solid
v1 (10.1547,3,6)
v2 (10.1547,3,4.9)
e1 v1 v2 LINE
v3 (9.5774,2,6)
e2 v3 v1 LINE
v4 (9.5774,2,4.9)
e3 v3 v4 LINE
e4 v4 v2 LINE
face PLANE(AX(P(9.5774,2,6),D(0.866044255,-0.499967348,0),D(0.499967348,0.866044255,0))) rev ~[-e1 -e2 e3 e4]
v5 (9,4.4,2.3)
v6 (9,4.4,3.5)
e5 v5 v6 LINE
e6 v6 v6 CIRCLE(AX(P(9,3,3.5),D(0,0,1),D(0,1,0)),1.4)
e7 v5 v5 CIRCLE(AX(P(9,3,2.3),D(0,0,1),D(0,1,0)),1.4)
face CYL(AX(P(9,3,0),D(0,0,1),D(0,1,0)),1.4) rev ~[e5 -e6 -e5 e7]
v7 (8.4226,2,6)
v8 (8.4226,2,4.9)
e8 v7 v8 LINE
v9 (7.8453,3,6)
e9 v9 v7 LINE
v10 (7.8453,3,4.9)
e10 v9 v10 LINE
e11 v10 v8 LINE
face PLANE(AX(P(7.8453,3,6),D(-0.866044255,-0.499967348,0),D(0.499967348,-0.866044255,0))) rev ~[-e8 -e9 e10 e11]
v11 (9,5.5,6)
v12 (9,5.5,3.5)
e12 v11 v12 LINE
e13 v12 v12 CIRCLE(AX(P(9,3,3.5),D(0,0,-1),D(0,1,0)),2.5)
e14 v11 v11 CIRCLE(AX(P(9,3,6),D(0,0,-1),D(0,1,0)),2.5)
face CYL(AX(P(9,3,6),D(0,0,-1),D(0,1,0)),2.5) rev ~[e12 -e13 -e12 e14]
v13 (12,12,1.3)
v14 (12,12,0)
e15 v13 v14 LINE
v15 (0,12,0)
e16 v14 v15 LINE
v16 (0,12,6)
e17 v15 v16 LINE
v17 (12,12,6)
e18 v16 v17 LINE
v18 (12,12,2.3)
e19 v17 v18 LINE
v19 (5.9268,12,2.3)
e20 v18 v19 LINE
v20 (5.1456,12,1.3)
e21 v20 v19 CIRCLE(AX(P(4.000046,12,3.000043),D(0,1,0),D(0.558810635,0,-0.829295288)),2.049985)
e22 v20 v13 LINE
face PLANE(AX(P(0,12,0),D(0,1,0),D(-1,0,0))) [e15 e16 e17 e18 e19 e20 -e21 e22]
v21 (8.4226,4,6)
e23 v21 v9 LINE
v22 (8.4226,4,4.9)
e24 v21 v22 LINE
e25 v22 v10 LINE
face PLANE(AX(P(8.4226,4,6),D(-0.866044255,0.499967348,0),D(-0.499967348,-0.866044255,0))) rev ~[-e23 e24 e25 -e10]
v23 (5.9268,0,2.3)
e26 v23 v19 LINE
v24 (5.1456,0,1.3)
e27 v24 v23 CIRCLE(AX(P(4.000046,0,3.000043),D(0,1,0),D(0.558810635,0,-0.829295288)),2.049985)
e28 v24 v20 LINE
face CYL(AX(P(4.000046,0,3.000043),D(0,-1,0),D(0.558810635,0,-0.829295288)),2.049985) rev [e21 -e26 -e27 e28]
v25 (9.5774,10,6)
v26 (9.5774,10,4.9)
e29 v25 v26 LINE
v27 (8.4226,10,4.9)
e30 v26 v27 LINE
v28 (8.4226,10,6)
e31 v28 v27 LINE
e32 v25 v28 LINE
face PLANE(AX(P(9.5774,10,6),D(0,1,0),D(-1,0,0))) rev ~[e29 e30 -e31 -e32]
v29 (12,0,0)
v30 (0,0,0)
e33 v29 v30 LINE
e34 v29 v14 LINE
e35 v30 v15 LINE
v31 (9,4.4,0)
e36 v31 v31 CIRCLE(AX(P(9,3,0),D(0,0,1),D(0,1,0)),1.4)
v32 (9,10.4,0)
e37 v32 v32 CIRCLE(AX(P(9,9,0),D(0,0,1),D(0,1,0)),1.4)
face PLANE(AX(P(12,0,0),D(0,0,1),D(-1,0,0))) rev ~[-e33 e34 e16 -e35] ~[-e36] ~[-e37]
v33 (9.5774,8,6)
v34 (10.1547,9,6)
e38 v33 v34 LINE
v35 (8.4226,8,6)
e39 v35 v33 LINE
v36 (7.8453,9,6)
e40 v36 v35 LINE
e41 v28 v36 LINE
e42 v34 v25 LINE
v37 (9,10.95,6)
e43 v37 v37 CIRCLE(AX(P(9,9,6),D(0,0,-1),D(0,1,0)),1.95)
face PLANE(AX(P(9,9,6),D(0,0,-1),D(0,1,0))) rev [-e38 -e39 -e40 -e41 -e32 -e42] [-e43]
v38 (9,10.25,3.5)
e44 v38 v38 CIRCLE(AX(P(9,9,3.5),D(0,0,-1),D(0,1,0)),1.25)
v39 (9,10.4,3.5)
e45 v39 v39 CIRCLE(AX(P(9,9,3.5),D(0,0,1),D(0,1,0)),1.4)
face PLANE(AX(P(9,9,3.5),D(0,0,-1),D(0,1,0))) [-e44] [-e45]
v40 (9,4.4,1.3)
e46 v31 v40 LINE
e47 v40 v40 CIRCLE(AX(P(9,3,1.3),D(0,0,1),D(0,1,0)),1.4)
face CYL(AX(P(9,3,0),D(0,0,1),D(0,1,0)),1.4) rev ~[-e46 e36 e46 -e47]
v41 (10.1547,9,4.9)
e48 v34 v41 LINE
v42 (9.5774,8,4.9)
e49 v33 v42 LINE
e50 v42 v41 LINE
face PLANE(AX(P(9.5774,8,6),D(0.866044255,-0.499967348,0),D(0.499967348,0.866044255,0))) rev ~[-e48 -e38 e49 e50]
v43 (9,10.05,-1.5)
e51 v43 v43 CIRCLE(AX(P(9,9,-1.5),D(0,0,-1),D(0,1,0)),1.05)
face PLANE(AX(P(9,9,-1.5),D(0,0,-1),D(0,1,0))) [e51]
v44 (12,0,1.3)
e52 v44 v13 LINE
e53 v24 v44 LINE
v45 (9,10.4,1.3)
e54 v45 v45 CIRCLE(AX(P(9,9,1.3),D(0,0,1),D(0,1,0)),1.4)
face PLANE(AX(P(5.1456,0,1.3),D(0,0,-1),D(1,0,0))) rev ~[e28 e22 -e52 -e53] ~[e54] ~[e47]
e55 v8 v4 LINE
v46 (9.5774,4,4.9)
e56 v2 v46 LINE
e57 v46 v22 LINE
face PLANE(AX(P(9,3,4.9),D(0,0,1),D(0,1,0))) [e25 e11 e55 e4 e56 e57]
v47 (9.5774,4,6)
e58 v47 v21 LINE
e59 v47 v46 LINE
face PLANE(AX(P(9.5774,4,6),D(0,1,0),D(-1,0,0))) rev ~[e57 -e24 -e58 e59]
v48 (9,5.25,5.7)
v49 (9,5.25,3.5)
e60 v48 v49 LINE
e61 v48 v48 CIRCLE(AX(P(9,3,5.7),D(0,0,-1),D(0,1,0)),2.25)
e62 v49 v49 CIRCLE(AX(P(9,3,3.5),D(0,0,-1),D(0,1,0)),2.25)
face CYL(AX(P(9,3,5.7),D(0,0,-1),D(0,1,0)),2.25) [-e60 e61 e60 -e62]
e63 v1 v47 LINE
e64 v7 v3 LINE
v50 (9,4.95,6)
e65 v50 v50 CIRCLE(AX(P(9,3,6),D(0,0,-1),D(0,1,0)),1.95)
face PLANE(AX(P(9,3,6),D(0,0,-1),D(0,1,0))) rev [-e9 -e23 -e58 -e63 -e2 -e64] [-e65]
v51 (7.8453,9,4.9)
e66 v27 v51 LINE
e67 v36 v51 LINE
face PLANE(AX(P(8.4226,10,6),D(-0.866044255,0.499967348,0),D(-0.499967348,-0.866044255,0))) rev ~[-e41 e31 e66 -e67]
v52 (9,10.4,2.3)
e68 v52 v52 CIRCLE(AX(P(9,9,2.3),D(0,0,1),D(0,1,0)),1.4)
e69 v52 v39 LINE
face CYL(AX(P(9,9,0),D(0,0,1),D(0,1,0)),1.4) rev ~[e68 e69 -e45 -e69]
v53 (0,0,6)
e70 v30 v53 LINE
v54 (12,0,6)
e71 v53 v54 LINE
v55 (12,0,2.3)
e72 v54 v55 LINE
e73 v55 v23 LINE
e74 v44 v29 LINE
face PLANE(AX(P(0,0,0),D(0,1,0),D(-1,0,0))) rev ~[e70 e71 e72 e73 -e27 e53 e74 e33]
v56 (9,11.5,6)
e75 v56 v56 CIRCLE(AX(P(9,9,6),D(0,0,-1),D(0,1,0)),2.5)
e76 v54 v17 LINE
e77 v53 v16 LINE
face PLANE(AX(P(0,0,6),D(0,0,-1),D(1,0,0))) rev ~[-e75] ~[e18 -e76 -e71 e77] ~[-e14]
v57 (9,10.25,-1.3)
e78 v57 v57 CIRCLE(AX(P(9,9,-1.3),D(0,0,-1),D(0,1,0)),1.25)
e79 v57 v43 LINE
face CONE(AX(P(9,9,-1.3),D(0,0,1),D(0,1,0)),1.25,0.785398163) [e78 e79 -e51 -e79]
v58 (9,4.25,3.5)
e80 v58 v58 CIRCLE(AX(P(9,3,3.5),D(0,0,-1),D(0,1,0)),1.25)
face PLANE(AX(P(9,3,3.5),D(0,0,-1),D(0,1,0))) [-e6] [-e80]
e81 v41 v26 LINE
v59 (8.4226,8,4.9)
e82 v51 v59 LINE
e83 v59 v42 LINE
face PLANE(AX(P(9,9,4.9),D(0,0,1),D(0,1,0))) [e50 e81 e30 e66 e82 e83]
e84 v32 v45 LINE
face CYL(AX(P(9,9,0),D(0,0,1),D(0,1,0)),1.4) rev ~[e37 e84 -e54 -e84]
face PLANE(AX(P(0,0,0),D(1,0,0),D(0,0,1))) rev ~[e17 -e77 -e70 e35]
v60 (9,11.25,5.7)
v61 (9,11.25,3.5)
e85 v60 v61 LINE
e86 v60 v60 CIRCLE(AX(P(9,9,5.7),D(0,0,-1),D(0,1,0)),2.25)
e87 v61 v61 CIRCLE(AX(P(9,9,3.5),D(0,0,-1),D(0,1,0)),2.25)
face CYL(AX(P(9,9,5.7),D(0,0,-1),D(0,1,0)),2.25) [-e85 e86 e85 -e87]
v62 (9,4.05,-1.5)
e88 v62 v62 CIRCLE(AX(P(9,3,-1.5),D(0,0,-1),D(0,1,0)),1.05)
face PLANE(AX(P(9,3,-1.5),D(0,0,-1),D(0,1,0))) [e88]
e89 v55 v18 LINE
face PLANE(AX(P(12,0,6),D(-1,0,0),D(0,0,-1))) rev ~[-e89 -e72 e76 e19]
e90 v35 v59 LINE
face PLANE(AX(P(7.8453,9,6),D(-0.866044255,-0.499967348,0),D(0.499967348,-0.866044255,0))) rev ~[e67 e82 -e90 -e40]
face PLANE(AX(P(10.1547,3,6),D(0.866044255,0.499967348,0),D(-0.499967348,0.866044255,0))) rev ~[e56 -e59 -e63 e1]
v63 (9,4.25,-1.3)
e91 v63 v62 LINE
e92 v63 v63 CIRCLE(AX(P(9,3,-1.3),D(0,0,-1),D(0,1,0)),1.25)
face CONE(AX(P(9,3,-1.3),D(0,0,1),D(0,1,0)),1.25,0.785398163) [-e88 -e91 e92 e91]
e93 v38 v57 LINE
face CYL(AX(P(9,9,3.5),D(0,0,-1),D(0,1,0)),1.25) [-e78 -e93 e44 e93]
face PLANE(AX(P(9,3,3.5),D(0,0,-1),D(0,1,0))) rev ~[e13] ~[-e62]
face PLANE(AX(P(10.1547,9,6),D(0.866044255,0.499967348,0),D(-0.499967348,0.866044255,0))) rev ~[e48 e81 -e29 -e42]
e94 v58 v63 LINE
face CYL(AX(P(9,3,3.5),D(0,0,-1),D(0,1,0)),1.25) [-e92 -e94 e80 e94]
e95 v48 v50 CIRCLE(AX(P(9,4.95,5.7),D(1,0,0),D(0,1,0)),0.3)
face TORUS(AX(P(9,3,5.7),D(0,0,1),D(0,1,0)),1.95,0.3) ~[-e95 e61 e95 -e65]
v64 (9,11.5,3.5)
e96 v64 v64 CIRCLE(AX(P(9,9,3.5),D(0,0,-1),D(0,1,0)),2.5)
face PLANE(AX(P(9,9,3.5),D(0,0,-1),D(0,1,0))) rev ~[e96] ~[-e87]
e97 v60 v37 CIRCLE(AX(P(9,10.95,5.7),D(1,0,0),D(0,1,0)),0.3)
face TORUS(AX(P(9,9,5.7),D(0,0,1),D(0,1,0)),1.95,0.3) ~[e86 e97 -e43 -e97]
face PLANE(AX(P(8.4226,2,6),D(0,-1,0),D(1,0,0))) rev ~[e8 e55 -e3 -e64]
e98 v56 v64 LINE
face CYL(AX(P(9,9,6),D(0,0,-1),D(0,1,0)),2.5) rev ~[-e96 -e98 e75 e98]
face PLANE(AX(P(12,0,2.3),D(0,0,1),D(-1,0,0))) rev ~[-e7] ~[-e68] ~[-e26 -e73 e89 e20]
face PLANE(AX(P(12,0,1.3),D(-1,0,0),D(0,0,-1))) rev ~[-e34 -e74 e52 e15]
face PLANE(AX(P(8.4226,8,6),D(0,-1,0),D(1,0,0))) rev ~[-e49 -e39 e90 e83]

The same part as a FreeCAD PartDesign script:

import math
import FreeCAD as App
import Part
import Sketcher
Q = App.Units.Quantity

doc = App.newDocument("Part")
body = doc.addObject("PartDesign::Body", "Body")

sketch1 = body.newObject("Sketcher::SketchObject", "Sketch")
sketch1.AttachmentSupport = (doc.getObject("XZ_Plane"), [""])
sketch1.MapMode = "FlatFace"
sketch1.addGeometry([
    Part.LineSegment(App.Vector(0, 0, 0), App.Vector(0, 6, 0)),
    Part.LineSegment(App.Vector(0, 6, 0), App.Vector(12, 6, 0)),
    Part.LineSegment(App.Vector(12, 6, 0), App.Vector(12, 2.3, 0)),
    Part.LineSegment(App.Vector(12, 2.3, 0), App.Vector(5.9268, 2.3, 0)),
    Part.ArcOfCircle(Part.Circle(App.Vector(4, 3, 0), App.Vector(0, 0, 1), 2.049975), math.radians(-19.965914), math.radians(303.975335)),
    Part.LineSegment(App.Vector(5.1456, 1.3, 0), App.Vector(12, 1.3, 0)),
    Part.LineSegment(App.Vector(12, 1.3, 0), App.Vector(12, 0, 0)),
    Part.LineSegment(App.Vector(12, 0, 0), App.Vector(0, 0, 0)),
], False)
sketch1.addConstraint([
    Sketcher.Constraint("Coincident", 0, 2, 1, 1),
    Sketcher.Constraint("Coincident", 1, 2, 2, 1),
    Sketcher.Constraint("Coincident", 2, 2, 3, 1),
    Sketcher.Constraint("Coincident", 3, 2, 4, 1),
    Sketcher.Constraint("Coincident", 4, 2, 5, 1),
    Sketcher.Constraint("Coincident", 5, 2, 6, 1),
    Sketcher.Constraint("Coincident", 6, 2, 7, 1),
    Sketcher.Constraint("Coincident", 7, 2, 0, 1),
    Sketcher.Constraint("Vertical", 0),
    Sketcher.Constraint("Horizontal", 1),
    Sketcher.Constraint("Vertical", 2),
    Sketcher.Constraint("Horizontal", 3),
    Sketcher.Constraint("Horizontal", 5),
    Sketcher.Constraint("Vertical", 6),
    Sketcher.Constraint("Horizontal", 7),
    Sketcher.Constraint("Coincident", 7, 2, -1, 1),
    Sketcher.Constraint("Vertical", 2, 2, 5, 2),
    Sketcher.Constraint("DistanceX", 1, 1, 1, 2, Q("12 mm")),
    Sketcher.Constraint("DistanceY", 0, 1, 0, 2, Q("6 mm")),
    Sketcher.Constraint("Radius", 4, Q("2.05 mm")),
    Sketcher.Constraint("DistanceY", 2, 2, 2, 1, Q("3.7 mm")),
    Sketcher.Constraint("DistanceY", 6, 2, 6, 1, Q("1.3 mm")),
    Sketcher.Constraint("DistanceX", -1, 1, 4, 3, Q("4 mm")),
    Sketcher.Constraint("DistanceY", -1, 1, 4, 3, Q("3 mm")),
])
pad1 = body.newObject("PartDesign::Pad", "Pad")
pad1.Profile = sketch1
pad1.Length = 12
pad1.Reversed = True

sketch2 = body.newObject("Sketcher::SketchObject", "Sketch001")
sketch2.AttachmentSupport = (doc.getObject("XY_Plane"), [""])
sketch2.MapMode = "FlatFace"
sketch2.addGeometry(Part.Circle(App.Vector(9, 3, 0), App.Vector(0, 0, 1), 1.4), False)
sketch2.addConstraint([
    Sketcher.Constraint("Diameter", 0, Q("2.8 mm")),
    Sketcher.Constraint("DistanceX", -1, 1, 0, 3, Q("9 mm")),
    Sketcher.Constraint("DistanceY", -1, 1, 0, 3, Q("3 mm")),
])
doc.recompute()
hole = body.newObject("PartDesign::Hole", "Hole")
hole.Profile = sketch2
hole.ThreadType = "None"
hole.Diameter = 2.8
hole.DepthType = "Dimension"
hole.Depth = 6
hole.DrillPoint = "Flat"
hole.Reversed = True
doc.recompute()

linearpattern = body.newObject("PartDesign::LinearPattern", "LinearPattern")
linearpattern.Originals = [hole]
linearpattern.Direction = (doc.getObject("Y_Axis"), [""])
linearpattern.Mode = "offset"
linearpattern.Offset = 6
linearpattern.Occurrences = 2
body.Tip = linearpattern

sketch3 = body.newObject("Sketcher::SketchObject", "Sketch002")
sketch3.AttachmentSupport = (doc.getObject("YZ_Plane"), [""])
sketch3.MapMode = "FlatFace"
sketch3.AttachmentOffset = App.Placement(App.Vector(0, 0, 9), App.Rotation())
sketch3.addGeometry([
    Part.LineSegment(App.Vector(3, 6, 0), App.Vector(3, 3.5, 0)),
    Part.LineSegment(App.Vector(3, 3.5, 0), App.Vector(5.5, 3.5, 0)),
    Part.LineSegment(App.Vector(5.5, 3.5, 0), App.Vector(5.5, 6, 0)),
    Part.LineSegment(App.Vector(5.5, 6, 0), App.Vector(3, 6, 0)),
], False)
sketch3.addGeometry(Part.LineSegment(App.Vector(3, 6, 0), App.Vector(3, 3.5, 0)), True)
sketch3.addConstraint([
    Sketcher.Constraint("Coincident", 0, 2, 1, 1),
    Sketcher.Constraint("Coincident", 1, 2, 2, 1),
    Sketcher.Constraint("Coincident", 2, 2, 3, 1),
    Sketcher.Constraint("Coincident", 3, 2, 0, 1),
    Sketcher.Constraint("Vertical", 0),
    Sketcher.Constraint("Horizontal", 1),
    Sketcher.Constraint("Vertical", 2),
    Sketcher.Constraint("Horizontal", 3),
    Sketcher.Constraint("Vertical", 4),
    Sketcher.Constraint("Coincident", 4, 1, 3, 2),
    Sketcher.Constraint("Horizontal", 1, 2, 4, 2),
    Sketcher.Constraint("Equal", 3, 0),
    Sketcher.Constraint("DistanceX", 1, 1, 1, 2, Q("2.5 mm")),
    Sketcher.Constraint("DistanceX", -1, 1, 0, 2, Q("3 mm")),
    Sketcher.Constraint("DistanceY", -1, 1, 2, 2, Q("6 mm")),
])
groove = body.newObject("PartDesign::Groove", "Groove")
groove.Profile = sketch3
groove.ReferenceAxis = (sketch3, ["Axis0"])
groove.Angle = 360
doc.recompute()

linearpattern2 = body.newObject("PartDesign::LinearPattern", "LinearPattern001")
linearpattern2.Originals = [groove]
linearpattern2.Direction = (doc.getObject("Y_Axis"), [""])
linearpattern2.Mode = "offset"
linearpattern2.Offset = 6
linearpattern2.Occurrences = 2
body.Tip = linearpattern2

sketch4 = body.newObject("Sketcher::SketchObject", "Sketch003")
sketch4.AttachmentSupport = (doc.getObject("YZ_Plane"), [""])
sketch4.MapMode = "FlatFace"
sketch4.AttachmentOffset = App.Placement(App.Vector(0, 0, 9), App.Rotation())
sketch4.addGeometry([
    Part.LineSegment(App.Vector(3, 6, 0), App.Vector(3, -1.5, 0)),
    Part.LineSegment(App.Vector(3, -1.5, 0), App.Vector(4.05, -1.5, 0)),
    Part.LineSegment(App.Vector(4.05, -1.5, 0), App.Vector(4.25, -1.3, 0)),
    Part.LineSegment(App.Vector(4.25, -1.3, 0), App.Vector(4.25, 3.5, 0)),
    Part.LineSegment(App.Vector(4.25, 3.5, 0), App.Vector(5.25, 3.5, 0)),
    Part.LineSegment(App.Vector(5.25, 3.5, 0), App.Vector(5.25, 5.7, 0)),
    Part.ArcOfCircle(Part.Circle(App.Vector(4.95, 5.7, 0), App.Vector(0, 0, 1), 0.3), math.radians(0), math.radians(90)),
    Part.LineSegment(App.Vector(4.95, 6, 0), App.Vector(3, 6, 0)),
], False)
sketch4.addGeometry(Part.LineSegment(App.Vector(3, 6, 0), App.Vector(3, -1.5, 0)), True)
sketch4.addConstraint([
    Sketcher.Constraint("Coincident", 0, 2, 1, 1),
    Sketcher.Constraint("Coincident", 1, 2, 2, 1),
    Sketcher.Constraint("Coincident", 2, 2, 3, 1),
    Sketcher.Constraint("Coincident", 3, 2, 4, 1),
    Sketcher.Constraint("Coincident", 4, 2, 5, 1),
    Sketcher.Constraint("Tangent", 5, 2, 6, 1),
    Sketcher.Constraint("Tangent", 6, 2, 7, 1),
    Sketcher.Constraint("Coincident", 7, 2, 0, 1),
    Sketcher.Constraint("Vertical", 0),
    Sketcher.Constraint("Horizontal", 1),
    Sketcher.Constraint("Vertical", 3),
    Sketcher.Constraint("Horizontal", 4),
    Sketcher.Constraint("Vertical", 5),
    Sketcher.Constraint("Horizontal", 7),
    Sketcher.Constraint("Vertical", 8),
    Sketcher.Constraint("Coincident", 8, 1, 7, 2),
    Sketcher.Constraint("Horizontal", 1, 2, 8, 2),
    Sketcher.Constraint("Radius", 6, Q("0.3 mm")),
    Sketcher.Constraint("DistanceX", 4, 1, 4, 2, Q("1 mm")),
    Sketcher.Constraint("Angle", 2, Q("45 deg")),
    Sketcher.Constraint("DistanceY", 0, 2, 0, 1, Q("7.5 mm")),
    Sketcher.Constraint("DistanceY", 3, 1, 3, 2, Q("4.8 mm")),
    Sketcher.Constraint("DistanceY", 5, 1, 5, 2, Q("2.2 mm")),
    Sketcher.Constraint("DistanceX", -1, 1, 0, 2, Q("3 mm")),
    Sketcher.Constraint("DistanceY", -1, 1, 6, 2, Q("6 mm")),
    Sketcher.Constraint("DistanceX", 1, 1, 1, 2, Q("1.05 mm")),
])
revolution = body.newObject("PartDesign::Revolution", "Revolution")
revolution.Profile = sketch4
revolution.ReferenceAxis = (sketch4, ["Axis0"])
revolution.Angle = 360
doc.recompute()

linearpattern3 = body.newObject("PartDesign::LinearPattern", "LinearPattern002")
linearpattern3.Originals = [revolution]
linearpattern3.Direction = (doc.getObject("Y_Axis"), [""])
linearpattern3.Mode = "offset"
linearpattern3.Offset = 6
linearpattern3.Occurrences = 2
body.Tip = linearpattern3

sketch5 = body.newObject("Sketcher::SketchObject", "Sketch004")
sketch5.AttachmentSupport = (doc.getObject("XY_Plane"), [""])
sketch5.MapMode = "FlatFace"
sketch5.AttachmentOffset = App.Placement(App.Vector(0, 0, 6), App.Rotation())
sketch5.addGeometry([
    Part.LineSegment(App.Vector(8.4226, 2, 0), App.Vector(9.5774, 2, 0)),
    Part.LineSegment(App.Vector(9.5774, 2, 0), App.Vector(10.1547, 3, 0)),
    Part.LineSegment(App.Vector(10.1547, 3, 0), App.Vector(9.5774, 4, 0)),
    Part.LineSegment(App.Vector(9.5774, 4, 0), App.Vector(8.4226, 4, 0)),
    Part.LineSegment(App.Vector(8.4226, 4, 0), App.Vector(7.8453, 3, 0)),
    Part.LineSegment(App.Vector(7.8453, 3, 0), App.Vector(8.4226, 2, 0)),
], False)
sketch5.addConstraint([
    Sketcher.Constraint("Coincident", 0, 2, 1, 1),
    Sketcher.Constraint("Coincident", 1, 2, 2, 1),
    Sketcher.Constraint("Coincident", 2, 2, 3, 1),
    Sketcher.Constraint("Coincident", 3, 2, 4, 1),
    Sketcher.Constraint("Coincident", 4, 2, 5, 1),
    Sketcher.Constraint("Coincident", 5, 2, 0, 1),
    Sketcher.Constraint("Horizontal", 0),
    Sketcher.Constraint("Horizontal", 3),
    Sketcher.Constraint("Parallel", 1, 4),
    Sketcher.Constraint("Parallel", 2, 5),
    Sketcher.Constraint("Horizontal", 1, 2, 4, 2),
    Sketcher.Constraint("Vertical", 0, 2, 2, 2),
    Sketcher.Constraint("Vertical", 3, 2, 5, 2),
    Sketcher.Constraint("DistanceY", -1, 1, 0, 2, Q("2 mm")),
    Sketcher.Constraint("DistanceY", -1, 1, 1, 2, Q("3 mm")),
    Sketcher.Constraint("DistanceX", 0, 1, 0, 2, Q("1.1548 mm")),
    Sketcher.Constraint("DistanceX", 3, 2, 1, 2, Q("1.732 mm")),
    Sketcher.Constraint("DistanceX", -1, 1, 0, 2, Q("9.5774 mm")),
])
pocket1 = body.newObject("PartDesign::Pocket", "Pocket")
pocket1.Profile = sketch5
pocket1.Length = 1.1
doc.recompute()

linearpattern4 = body.newObject("PartDesign::LinearPattern", "LinearPattern003")
linearpattern4.Originals = [pocket1]
linearpattern4.Direction = (doc.getObject("Y_Axis"), [""])
linearpattern4.Mode = "offset"
linearpattern4.Offset = 6
linearpattern4.Occurrences = 2
body.Tip = linearpattern4

doc.recompute()
